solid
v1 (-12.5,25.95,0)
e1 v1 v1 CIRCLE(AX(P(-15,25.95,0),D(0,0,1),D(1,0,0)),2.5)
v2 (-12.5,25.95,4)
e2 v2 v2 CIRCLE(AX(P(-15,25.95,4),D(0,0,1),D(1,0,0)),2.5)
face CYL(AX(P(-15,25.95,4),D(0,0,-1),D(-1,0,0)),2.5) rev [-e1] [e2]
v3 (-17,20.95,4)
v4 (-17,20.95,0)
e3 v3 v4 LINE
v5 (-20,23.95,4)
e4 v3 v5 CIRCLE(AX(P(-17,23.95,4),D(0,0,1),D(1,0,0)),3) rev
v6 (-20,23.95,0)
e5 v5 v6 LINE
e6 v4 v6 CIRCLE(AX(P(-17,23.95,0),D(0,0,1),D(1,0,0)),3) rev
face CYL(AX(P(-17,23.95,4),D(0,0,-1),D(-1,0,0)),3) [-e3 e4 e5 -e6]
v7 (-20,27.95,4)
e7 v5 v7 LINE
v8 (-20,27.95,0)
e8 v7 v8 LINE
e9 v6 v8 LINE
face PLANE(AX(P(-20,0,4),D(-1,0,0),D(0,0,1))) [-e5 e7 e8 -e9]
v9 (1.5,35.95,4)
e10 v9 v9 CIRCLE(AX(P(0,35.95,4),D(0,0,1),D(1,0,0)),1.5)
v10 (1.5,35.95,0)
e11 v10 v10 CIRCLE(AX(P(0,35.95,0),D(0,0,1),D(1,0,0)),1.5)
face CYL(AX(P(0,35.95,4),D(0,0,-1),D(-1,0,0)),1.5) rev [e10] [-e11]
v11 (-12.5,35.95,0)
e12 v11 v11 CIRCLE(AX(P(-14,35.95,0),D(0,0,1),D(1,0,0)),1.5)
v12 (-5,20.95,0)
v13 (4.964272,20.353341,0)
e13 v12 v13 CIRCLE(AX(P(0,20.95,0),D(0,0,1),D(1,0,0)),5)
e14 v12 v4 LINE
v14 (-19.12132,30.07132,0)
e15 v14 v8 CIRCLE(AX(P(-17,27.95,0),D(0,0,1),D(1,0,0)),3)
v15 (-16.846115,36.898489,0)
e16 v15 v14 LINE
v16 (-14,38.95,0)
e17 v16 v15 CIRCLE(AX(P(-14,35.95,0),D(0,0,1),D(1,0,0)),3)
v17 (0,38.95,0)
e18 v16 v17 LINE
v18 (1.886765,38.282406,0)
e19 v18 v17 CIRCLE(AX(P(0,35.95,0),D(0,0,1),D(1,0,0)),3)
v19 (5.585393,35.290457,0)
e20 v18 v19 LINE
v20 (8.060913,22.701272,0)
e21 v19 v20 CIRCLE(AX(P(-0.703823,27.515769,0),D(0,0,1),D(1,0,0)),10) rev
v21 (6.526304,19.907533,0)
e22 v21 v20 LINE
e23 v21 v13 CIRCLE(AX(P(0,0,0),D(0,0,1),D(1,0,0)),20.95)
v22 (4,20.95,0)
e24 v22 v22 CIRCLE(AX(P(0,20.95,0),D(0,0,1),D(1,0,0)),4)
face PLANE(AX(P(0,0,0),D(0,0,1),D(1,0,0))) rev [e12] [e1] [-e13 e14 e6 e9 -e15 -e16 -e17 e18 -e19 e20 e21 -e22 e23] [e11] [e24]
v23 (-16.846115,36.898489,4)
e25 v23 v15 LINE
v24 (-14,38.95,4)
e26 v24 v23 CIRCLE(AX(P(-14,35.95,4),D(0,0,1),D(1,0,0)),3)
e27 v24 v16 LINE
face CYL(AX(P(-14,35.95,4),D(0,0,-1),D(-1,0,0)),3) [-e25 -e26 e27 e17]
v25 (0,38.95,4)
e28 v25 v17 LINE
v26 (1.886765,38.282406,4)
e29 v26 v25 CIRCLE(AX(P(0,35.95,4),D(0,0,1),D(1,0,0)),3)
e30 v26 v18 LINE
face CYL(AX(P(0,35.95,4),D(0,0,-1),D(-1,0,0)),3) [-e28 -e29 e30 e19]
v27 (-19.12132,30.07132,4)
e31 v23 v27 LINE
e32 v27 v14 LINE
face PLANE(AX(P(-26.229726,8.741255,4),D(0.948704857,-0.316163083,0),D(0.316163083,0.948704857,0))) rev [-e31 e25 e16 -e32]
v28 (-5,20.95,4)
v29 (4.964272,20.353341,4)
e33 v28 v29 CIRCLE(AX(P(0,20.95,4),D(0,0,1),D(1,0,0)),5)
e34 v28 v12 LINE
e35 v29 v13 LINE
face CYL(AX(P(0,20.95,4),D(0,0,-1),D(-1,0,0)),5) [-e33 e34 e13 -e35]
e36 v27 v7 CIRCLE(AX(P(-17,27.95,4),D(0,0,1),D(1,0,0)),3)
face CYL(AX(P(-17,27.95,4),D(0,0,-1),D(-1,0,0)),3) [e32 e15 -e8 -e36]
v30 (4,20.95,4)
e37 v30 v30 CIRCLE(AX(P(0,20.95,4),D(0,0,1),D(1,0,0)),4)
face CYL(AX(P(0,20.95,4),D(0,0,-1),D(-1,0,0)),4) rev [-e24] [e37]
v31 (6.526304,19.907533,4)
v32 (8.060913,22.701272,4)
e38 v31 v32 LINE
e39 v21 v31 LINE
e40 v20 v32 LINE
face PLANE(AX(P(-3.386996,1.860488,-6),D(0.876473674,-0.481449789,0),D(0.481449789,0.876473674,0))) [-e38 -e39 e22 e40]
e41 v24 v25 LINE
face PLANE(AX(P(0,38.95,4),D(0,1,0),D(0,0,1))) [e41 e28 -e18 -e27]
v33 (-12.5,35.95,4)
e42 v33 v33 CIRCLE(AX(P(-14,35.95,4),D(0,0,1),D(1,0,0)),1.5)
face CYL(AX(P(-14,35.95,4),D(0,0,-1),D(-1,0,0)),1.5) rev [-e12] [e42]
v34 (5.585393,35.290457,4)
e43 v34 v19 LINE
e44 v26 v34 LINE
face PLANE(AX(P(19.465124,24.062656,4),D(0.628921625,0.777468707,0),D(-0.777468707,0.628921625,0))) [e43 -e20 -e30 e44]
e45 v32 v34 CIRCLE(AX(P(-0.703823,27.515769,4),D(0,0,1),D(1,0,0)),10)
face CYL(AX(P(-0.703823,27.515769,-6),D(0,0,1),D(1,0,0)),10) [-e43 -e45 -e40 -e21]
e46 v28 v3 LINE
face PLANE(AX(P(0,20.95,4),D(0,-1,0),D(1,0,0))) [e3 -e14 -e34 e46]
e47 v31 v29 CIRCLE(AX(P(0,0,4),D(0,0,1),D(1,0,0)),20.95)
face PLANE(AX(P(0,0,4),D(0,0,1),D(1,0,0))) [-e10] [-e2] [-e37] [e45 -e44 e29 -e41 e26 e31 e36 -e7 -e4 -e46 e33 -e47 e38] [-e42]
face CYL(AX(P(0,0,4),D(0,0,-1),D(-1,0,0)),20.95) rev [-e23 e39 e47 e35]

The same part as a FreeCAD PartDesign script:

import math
import FreeCAD as App
import Part
import Sketcher

V = App.Vector
Q = App.Units.Quantity


def edges_at(feature, points):
    """Names of the edges that pass closest to the given points."""
    edges = feature.Shape.Edges
    near = lambda p: min(range(len(edges)), key=lambda i: edges[i].distToShape(Part.Vertex(*p))[0])
    return sorted({f"Edge{near(p) + 1}" for p in points})

doc = App.newDocument("Part")
body = doc.addObject("PartDesign::Body", "Body")

sketch1 = body.newObject("Sketcher::SketchObject", "Sketch")
sketch1.AttachmentSupport = (doc.getObject("XY_Plane"), [""])
sketch1.MapMode = "FlatFace"
sketch1.addGeometry(Part.ArcOfCircle(Part.Circle(V(16.320516, 20.175313, 0), V(0, 0, 1), 5), math.radians(-128.970607), math.radians(51.029393)), False)
sketch1.addGeometry(Part.LineSegment(V(19.465124, 24.062656, 0), V(1.886765, 38.282406, 0)), False)
sketch1.addGeometry(Part.ArcOfCircle(Part.Circle(V(0, 35.95, 0), V(0, 0, 1), 3), math.radians(51.029393), math.radians(90)), False)
sketch1.addGeometry(Part.LineSegment(V(0, 38.95, 0), V(-14, 38.95, 0)), False)
sketch1.addGeometry(Part.ArcOfCircle(Part.Circle(V(-14, 35.95, 0), V(0, 0, 1), 3), math.radians(90), math.radians(161.568958)), False)
sketch1.addGeometry(Part.LineSegment(V(-16.846115, 36.898489, 0), V(-19.12132, 30.07132, 0)), False)
sketch1.addGeometry(Part.ArcOfCircle(Part.Circle(V(-17, 27.95, 0), V(0, 0, 1), 3), math.radians(135), math.radians(180)), False)
sketch1.addGeometry(Part.LineSegment(V(-20, 27.95, 0), V(-20, 23.95, 0)), False)
sketch1.addGeometry(Part.ArcOfCircle(Part.Circle(V(-17, 23.95, 0), V(0, 0, 1), 3), math.radians(180), math.radians(270)), False)
sketch1.addGeometry(Part.LineSegment(V(-17, 20.95, 0), V(-5, 20.95, 0)), False)
sketch1.addGeometry(Part.ArcOfCircle(Part.Circle(V(0, 20.95, 0), V(0, 0, 1), 5), math.radians(-180), math.radians(-6.853537)), False)
sketch1.addGeometry(Part.ArcOfCircle(Part.Circle(V(0, 0, 0), V(0, 0, 1), 20.95), math.radians(51.029393), math.radians(76.292926)), False)
sketch1.addGeometry(Part.Circle(V(-15, 25.95, 0), V(0, 0, 1), 2.5), False)
sketch1.addGeometry(Part.Circle(V(0, 20.95, 0), V(0, 0, 1), 4), False)
sketch1.addGeometry(Part.Circle(V(-14, 35.95, 0), V(0, 0, 1), 1.5), False)
sketch1.addGeometry(Part.Circle(V(0, 35.95, 0), V(0, 0, 1), 1.5), False)
sketch1.addConstraint(Sketcher.Constraint("Tangent", 0, 2, 1, 1))
sketch1.addConstraint(Sketcher.Constraint("Tangent", 1, 2, 2, 1))
sketch1.addConstraint(Sketcher.Constraint("Tangent", 2, 2, 3, 1))
sketch1.addConstraint(Sketcher.Constraint("Tangent", 3, 2, 4, 1))
sketch1.addConstraint(Sketcher.Constraint("Tangent", 4, 2, 5, 1))
sketch1.addConstraint(Sketcher.Constraint("Coincident", 5, 2, 6, 1))
sketch1.addConstraint(Sketcher.Constraint("Tangent", 6, 2, 7, 1))
sketch1.addConstraint(Sketcher.Constraint("Tangent", 7, 2, 8, 1))
sketch1.addConstraint(Sketcher.Constraint("Tangent", 8, 2, 9, 1))
sketch1.addConstraint(Sketcher.Constraint("Coincident", 9, 2, 10, 1))
sketch1.addConstraint(Sketcher.Constraint("Coincident", 10, 2, 11, 2))
sketch1.addConstraint(Sketcher.Constraint("Tangent", 11, 1, 0, 1))
sketch1.addConstraint(Sketcher.Constraint("Horizontal", 3))
sketch1.addConstraint(Sketcher.Constraint("Vertical", 7))
sketch1.addConstraint(Sketcher.Constraint("Horizontal", 9))
sketch1.addConstraint(Sketcher.Constraint("Coincident", 11, 3, -1, 1))
sketch1.addConstraint(Sketcher.Constraint("Coincident", 13, 3, 10, 3))
sketch1.addConstraint(Sketcher.Constraint("Coincident", 14, 3, 4, 3))
sketch1.addConstraint(Sketcher.Constraint("Coincident", 15, 3, 2, 3))
sketch1.addConstraint(Sketcher.Constraint("Equal", 2, 4))
sketch1.addConstraint(Sketcher.Constraint("Equal", 4, 6))
sketch1.addConstraint(Sketcher.Constraint("Equal", 6, 8))
sketch1.addConstraint(Sketcher.Constraint("Equal", 0, 10))
sketch1.addConstraint(Sketcher.Constraint("Equal", 14, 15))
sketch1.addConstraint(Sketcher.Constraint("PointOnObject", 2, 3, -2))
sketch1.addConstraint(Sketcher.Constraint("PointOnObject", 10, 3, -2))
sketch1.addConstraint(Sketcher.Constraint("Horizontal", 13, 3, 8, 2))
sketch1.addConstraint(Sketcher.Constraint("Diameter", 12, Q("5 mm")))
sketch1.addConstraint(Sketcher.Constraint("Diameter", 13, Q("8 mm")))
sketch1.addConstraint(Sketcher.Constraint("Diameter", 14, Q("3 mm")))
sketch1.addConstraint(Sketcher.Constraint("Radius", 0, Q("5 mm")))
sketch1.addConstraint(Sketcher.Constraint("Radius", 2, Q("3 mm")))
sketch1.addConstraint(Sketcher.Constraint("DistanceX", 3, 2, 3, 1, Q("14 mm")))
sketch1.addConstraint(Sketcher.Constraint("DistanceX", 9, 1, 9, 2, Q("12 mm")))
sketch1.addConstraint(Sketcher.Constraint("DistanceY", 7, 2, 7, 1, Q("4 mm")))
sketch1.addConstraint(Sketcher.Constraint("Radius", 11, Q("20.95 mm")))
sketch1.addConstraint(Sketcher.Constraint("DistanceX", 12, 3, -1, 1, Q("15 mm")))
sketch1.addConstraint(Sketcher.Constraint("DistanceY", 6, 3, 4, 3, Q("8 mm")))
sketch1.addConstraint(Sketcher.Constraint("DistanceY", 12, 3, 6, 3, Q("2 mm")))
sketch1.addConstraint(Sketcher.Constraint("DistanceY", -1, 1, 2, 3, Q("35.95 mm")))
sketch1.addConstraint(Sketcher.Constraint("DistanceY", -1, 1, 4, 2, Q("36.898489 mm")))
sketch1.addConstraint(Sketcher.Constraint("DistanceX", -1, 1, 11, 1, Q("13.175908 mm")))
pad1 = body.newObject("PartDesign::Pad", "Pad")
pad1.Profile = sketch1
pad1.Length = 4

sketch2 = body.newObject("Sketcher::SketchObject", "Sketch001")
sketch2.AttachmentSupport = (doc.getObject("XY_Plane"), [""])
sketch2.MapMode = "FlatFace"
sketch2.AttachmentOffset = App.Placement(V(0, 0, 4), App.Rotation())
sketch2.addGeometry(Part.LineSegment(V(12.087139, 30.030967, 0), V(6.526304, 19.907533, 0)), False)
sketch2.addGeometry(Part.ArcOfCircle(Part.Circle(V(0, 0, 0), V(0, 0, 1), 20.95), math.radians(51.029393), math.radians(71.849259)), False)
sketch2.addGeometry(Part.ArcOfCircle(Part.Circle(V(16.320516, 20.175313, 0), V(0, 0, 1), 5), math.radians(-128.970607), math.radians(51.029393)), False)
sketch2.addGeometry(Part.LineSegment(V(19.465124, 24.062656, 0), V(12.087139, 30.030967, 0)), False)
sketch2.addConstraint(Sketcher.Constraint("Coincident", 0, 2, 1, 2))
sketch2.addConstraint(Sketcher.Constraint("Tangent", 1, 1, 2, 1))
sketch2.addConstraint(Sketcher.Constraint("Tangent", 2, 2, 3, 1))
sketch2.addConstraint(Sketcher.Constraint("Coincident", 3, 2, 0, 1))
sketch2.addConstraint(Sketcher.Constraint("Coincident", 1, 3, -1, 1))
sketch2.addConstraint(Sketcher.Constraint("Radius", 2, Q("5 mm")))
sketch2.addConstraint(Sketcher.Constraint("Radius", 1, Q("20.95 mm")))
sketch2.addConstraint(Sketcher.Constraint("DistanceX", -1, 1, 1, 1, Q("13.175908 mm")))
sketch2.addConstraint(Sketcher.Constraint("DistanceX", -1, 1, 3, 2, Q("12.087139 mm")))
sketch2.addConstraint(Sketcher.Constraint("DistanceY", 0, 2, 2, 3, Q("0.26778 mm")))
sketch2.addConstraint(Sketcher.Constraint("DistanceX", 2, 3, 2, 2, Q("3.144608 mm")))
pocket1 = body.newObject("PartDesign::Pocket", "Pocket")
pocket1.Profile = sketch2
pocket1.Length = 10
doc.recompute()

fillet = body.newObject("PartDesign::Fillet", "Fillet")
fillet.Base = (pocket1, edges_at(pocket1, [(12.087, 30.031, 2)]))
fillet.Radius = 10

doc.recompute()
